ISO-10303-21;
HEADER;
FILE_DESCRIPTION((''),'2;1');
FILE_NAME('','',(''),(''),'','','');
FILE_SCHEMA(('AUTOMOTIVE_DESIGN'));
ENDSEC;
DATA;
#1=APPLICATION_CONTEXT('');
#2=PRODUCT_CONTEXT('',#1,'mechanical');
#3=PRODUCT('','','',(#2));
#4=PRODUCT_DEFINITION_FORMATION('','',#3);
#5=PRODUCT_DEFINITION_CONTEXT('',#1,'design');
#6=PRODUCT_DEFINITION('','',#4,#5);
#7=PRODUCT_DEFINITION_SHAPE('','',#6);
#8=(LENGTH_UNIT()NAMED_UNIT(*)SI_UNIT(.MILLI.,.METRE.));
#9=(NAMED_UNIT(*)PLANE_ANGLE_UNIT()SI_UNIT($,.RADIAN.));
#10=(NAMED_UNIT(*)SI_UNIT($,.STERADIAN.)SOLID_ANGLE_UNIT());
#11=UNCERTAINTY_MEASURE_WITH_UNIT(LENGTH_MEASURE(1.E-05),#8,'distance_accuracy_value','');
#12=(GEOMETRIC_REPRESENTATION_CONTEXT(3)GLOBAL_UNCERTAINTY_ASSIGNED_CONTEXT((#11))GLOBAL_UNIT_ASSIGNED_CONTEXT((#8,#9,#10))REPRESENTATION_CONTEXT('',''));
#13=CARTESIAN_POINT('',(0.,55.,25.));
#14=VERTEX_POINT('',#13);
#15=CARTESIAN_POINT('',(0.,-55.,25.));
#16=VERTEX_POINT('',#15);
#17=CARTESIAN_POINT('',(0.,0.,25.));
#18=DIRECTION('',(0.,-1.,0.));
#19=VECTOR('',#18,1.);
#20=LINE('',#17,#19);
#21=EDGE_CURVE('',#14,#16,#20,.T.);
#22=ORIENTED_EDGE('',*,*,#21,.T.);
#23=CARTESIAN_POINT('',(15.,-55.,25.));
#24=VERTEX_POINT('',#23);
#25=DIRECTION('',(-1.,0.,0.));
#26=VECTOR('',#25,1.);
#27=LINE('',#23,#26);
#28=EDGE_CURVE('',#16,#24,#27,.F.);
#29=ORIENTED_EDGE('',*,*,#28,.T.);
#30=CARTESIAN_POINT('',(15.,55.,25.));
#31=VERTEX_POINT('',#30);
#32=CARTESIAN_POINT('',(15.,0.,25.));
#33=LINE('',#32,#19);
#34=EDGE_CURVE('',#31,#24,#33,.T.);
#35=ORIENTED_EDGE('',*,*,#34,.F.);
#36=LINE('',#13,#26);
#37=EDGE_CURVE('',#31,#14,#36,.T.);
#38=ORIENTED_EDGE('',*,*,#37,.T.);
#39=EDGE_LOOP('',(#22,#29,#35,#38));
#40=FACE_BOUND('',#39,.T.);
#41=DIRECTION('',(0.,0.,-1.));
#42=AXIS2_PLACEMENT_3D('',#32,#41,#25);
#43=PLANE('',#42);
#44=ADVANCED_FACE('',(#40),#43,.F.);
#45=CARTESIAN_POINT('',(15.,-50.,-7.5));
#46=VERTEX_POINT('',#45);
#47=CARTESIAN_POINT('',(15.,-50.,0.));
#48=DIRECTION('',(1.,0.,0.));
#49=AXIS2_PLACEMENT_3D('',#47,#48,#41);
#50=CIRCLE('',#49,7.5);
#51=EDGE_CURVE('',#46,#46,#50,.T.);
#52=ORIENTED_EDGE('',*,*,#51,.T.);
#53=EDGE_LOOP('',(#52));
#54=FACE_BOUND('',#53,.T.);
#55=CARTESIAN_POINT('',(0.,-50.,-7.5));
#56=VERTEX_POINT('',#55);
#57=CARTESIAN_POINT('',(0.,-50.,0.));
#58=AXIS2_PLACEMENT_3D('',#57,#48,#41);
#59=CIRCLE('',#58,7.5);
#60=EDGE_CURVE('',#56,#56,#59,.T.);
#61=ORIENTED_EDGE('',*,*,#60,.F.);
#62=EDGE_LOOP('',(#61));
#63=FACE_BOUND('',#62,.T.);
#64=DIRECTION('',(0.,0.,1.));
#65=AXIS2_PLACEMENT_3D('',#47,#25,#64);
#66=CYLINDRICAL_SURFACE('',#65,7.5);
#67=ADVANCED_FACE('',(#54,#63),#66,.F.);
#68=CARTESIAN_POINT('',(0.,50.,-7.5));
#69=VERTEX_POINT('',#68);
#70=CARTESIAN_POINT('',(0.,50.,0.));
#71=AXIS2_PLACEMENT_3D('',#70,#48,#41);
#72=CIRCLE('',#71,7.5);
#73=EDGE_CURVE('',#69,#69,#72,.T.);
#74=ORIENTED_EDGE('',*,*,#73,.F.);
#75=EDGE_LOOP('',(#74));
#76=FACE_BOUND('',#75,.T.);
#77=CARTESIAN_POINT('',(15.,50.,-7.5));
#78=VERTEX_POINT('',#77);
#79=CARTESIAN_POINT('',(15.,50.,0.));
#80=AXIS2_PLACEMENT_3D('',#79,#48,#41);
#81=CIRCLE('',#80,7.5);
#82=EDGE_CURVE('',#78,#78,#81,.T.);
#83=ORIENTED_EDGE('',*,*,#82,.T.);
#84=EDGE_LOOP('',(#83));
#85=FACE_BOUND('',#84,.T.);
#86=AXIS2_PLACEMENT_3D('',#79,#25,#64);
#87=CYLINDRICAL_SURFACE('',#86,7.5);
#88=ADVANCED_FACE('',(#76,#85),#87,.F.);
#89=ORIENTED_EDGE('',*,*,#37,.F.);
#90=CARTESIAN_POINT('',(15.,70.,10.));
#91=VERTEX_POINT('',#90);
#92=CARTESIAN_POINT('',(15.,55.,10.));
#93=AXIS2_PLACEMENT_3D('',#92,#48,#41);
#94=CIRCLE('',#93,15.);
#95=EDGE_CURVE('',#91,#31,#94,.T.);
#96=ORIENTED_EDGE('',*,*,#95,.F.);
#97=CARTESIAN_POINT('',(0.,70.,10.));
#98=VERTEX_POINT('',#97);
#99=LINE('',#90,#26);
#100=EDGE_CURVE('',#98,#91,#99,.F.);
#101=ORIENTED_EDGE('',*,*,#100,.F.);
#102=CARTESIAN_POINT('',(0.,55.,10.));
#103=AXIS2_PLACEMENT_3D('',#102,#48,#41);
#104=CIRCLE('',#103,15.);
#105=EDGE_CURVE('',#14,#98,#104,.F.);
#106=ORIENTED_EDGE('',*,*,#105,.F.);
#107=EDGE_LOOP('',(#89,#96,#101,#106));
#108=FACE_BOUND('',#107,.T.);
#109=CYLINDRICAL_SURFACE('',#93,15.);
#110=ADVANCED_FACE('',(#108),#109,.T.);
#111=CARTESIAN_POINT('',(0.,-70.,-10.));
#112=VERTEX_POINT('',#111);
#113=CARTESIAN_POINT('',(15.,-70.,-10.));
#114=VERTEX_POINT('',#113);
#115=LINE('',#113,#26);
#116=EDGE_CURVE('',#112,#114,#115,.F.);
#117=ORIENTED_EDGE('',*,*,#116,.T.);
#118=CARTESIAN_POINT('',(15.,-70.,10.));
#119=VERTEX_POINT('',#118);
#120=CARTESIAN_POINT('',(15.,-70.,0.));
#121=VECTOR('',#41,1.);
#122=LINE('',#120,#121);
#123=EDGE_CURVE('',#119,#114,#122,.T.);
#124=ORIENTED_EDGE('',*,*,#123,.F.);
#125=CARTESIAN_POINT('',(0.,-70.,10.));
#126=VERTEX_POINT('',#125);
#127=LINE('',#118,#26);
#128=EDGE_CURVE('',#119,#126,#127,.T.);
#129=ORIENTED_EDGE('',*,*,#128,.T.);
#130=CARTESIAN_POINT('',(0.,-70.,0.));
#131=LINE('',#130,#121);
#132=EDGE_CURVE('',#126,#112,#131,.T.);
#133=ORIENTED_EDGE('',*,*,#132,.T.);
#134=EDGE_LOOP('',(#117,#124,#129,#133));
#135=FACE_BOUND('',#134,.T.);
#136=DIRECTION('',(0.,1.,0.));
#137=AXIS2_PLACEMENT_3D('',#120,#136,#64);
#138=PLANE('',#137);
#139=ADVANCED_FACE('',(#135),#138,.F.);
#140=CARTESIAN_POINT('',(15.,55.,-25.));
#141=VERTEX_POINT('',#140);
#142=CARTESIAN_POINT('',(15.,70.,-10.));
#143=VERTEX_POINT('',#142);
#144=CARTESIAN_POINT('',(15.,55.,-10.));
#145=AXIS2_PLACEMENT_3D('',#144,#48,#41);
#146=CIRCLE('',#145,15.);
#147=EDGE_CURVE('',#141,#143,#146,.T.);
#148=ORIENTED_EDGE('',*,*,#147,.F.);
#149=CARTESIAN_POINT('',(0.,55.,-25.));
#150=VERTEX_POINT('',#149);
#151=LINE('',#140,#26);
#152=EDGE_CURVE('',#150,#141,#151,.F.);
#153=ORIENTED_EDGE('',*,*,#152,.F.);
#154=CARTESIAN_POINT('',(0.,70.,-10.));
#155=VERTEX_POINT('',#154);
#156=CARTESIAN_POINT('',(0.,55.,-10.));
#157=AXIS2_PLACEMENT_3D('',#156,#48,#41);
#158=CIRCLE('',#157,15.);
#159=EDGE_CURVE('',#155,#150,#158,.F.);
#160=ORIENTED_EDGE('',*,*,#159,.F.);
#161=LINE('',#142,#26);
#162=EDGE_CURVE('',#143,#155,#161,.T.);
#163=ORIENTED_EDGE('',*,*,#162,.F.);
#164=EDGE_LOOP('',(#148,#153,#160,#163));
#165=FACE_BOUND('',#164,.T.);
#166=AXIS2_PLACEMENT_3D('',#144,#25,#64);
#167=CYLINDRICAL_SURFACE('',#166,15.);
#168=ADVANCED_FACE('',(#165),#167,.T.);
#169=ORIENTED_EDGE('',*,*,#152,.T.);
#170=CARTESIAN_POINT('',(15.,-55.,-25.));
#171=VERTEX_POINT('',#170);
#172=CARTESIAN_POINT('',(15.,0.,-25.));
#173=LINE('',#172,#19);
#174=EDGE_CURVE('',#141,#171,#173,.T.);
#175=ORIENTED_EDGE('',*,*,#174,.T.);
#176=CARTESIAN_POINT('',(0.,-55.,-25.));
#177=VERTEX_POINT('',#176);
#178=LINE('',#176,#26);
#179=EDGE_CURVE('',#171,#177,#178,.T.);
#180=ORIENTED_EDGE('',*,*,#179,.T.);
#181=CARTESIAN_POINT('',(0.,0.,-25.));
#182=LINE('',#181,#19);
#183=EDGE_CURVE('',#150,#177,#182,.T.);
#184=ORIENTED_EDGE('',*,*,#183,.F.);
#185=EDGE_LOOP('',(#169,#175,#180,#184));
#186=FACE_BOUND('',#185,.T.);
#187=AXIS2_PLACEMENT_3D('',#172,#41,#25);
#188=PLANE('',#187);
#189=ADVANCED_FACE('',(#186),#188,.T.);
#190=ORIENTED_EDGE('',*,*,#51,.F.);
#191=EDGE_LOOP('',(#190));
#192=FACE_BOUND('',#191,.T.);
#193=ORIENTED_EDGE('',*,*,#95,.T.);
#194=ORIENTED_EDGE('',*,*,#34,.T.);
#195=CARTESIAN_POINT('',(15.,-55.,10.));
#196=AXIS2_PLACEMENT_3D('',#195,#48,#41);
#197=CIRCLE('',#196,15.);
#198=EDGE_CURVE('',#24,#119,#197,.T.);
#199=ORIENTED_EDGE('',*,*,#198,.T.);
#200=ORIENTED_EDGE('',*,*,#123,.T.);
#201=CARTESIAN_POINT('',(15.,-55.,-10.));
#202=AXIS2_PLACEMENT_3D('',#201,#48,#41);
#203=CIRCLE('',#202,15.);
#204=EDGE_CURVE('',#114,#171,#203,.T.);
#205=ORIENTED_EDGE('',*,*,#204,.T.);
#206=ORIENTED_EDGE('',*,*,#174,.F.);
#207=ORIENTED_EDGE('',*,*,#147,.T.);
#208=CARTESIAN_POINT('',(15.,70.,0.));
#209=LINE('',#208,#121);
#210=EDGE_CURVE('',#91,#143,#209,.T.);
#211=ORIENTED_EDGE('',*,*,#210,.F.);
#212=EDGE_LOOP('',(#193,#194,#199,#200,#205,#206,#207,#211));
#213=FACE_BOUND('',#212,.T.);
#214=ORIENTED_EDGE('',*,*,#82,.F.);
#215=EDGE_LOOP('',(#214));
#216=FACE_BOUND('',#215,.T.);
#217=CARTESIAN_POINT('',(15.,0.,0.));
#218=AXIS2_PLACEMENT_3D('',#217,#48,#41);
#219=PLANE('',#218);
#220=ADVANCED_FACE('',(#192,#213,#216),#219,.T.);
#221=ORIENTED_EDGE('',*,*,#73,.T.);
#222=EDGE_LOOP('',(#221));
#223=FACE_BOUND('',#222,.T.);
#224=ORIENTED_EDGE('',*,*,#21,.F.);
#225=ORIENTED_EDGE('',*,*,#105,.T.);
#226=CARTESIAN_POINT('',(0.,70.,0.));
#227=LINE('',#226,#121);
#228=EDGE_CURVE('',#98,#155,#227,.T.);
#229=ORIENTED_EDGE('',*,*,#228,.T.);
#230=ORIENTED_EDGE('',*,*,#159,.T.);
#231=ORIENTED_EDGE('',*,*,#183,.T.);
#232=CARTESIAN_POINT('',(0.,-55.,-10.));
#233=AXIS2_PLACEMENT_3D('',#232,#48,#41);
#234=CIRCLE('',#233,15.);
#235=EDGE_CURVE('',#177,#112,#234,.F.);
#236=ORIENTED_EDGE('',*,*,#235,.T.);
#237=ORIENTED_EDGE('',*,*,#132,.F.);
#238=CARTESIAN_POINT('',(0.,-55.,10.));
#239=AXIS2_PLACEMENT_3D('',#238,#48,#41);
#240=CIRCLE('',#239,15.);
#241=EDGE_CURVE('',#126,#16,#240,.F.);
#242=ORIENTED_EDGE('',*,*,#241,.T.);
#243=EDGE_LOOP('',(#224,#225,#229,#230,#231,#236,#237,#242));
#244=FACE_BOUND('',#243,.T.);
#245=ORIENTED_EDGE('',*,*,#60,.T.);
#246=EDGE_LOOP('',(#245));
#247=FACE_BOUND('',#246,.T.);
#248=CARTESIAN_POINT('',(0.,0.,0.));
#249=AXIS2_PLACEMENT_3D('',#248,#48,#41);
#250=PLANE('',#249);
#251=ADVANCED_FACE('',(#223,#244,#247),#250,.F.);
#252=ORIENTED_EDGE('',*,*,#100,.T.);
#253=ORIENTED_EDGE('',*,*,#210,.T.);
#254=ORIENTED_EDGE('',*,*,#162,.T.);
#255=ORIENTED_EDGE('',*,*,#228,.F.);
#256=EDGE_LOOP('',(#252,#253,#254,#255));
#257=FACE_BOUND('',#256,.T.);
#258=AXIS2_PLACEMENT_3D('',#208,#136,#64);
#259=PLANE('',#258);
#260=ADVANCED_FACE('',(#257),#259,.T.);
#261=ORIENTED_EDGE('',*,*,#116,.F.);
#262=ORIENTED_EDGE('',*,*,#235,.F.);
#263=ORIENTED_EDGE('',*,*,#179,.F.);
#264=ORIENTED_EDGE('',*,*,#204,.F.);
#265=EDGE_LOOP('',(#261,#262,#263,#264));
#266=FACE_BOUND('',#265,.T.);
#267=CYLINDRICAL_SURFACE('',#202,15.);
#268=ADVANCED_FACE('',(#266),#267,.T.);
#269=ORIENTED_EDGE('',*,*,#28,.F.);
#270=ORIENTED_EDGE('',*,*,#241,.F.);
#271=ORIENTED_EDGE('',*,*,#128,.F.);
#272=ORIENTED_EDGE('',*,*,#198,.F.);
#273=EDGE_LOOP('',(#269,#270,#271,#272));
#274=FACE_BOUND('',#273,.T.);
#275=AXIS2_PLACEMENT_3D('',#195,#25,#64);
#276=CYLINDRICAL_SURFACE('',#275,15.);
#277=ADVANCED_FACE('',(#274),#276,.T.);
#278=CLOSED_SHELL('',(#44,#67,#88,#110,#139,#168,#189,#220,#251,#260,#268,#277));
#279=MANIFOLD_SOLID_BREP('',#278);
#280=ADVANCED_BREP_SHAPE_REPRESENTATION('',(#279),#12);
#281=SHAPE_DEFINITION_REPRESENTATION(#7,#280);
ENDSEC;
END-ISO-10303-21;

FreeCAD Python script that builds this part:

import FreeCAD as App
import Part
import Sketcher
from FreeCAD import Vector


def edges_at(feature, points):
    """Names of the edges that pass closest to the given points."""
    edges = feature.Shape.Edges
    near = lambda p: min(range(len(edges)), key=lambda i: edges[i].distToShape(Part.Vertex(*p))[0])
    return sorted({f"Edge{near(p) + 1}" for p in points})


def add_polygon(sketch, points):
    """Adds a closed chain of lines whose ends are joined by coincident constraints."""
    first, n = sketch.GeometryCount, len(points)
    for a, b in zip(points, points[1:] + points[:1]):
        sketch.addGeometry(Part.LineSegment(App.Vector(*a, 0), App.Vector(*b, 0)), False)
    for i in range(n):
        sketch.addConstraint(Sketcher.Constraint("Coincident", first + i, 2, first + (i + 1) % n, 1))

doc = App.newDocument("Part")
body = doc.addObject("PartDesign::Body", "Body")

# Sketch on YZ plane
sketch1 = body.newObject("Sketcher::SketchObject", "Sketch")
sketch1.AttachmentSupport = (doc.getObject("YZ_Plane"), [""])
sketch1.MapMode = "FlatFace"
add_polygon(sketch1, [(70, 25), (-70, 25), (-70, -25), (70, -25)])  # lines 0-3
sketch1.addConstraint(Sketcher.Constraint("Horizontal", 0))
sketch1.addConstraint(Sketcher.Constraint("Vertical", 1))
sketch1.addConstraint(Sketcher.Constraint("Horizontal", 2))
sketch1.addConstraint(Sketcher.Constraint("Vertical", 3))
sketch1.addConstraint(Sketcher.Constraint("Symmetric", 0, 2, 2, 2, -1, 1))
sketch1.addConstraint(Sketcher.Constraint("DistanceX", 0, 2, 0, 1, 140.0))
sketch1.addConstraint(Sketcher.Constraint("DistanceY", 1, 2, 1, 1, 50.0))
pad1 = body.newObject("PartDesign::Pad", "Pad")
pad1.Profile = sketch1
pad1.Length = 15

# Sketch on YZ plane
sketch2 = body.newObject("Sketcher::SketchObject", "Sketch001")
sketch2.AttachmentSupport = (doc.getObject("YZ_Plane"), [""])
sketch2.MapMode = "FlatFace"
sketch2.addGeometry(Part.Circle(Vector(50, 0, 0), Vector(0, 0, 1), 8), False)
sketch2.addGeometry(Part.Circle(Vector(-50, 0, 0), Vector(0, 0, 1), 8), False)
sketch2.addConstraint(Sketcher.Constraint("Equal", 0, 1))
sketch2.addConstraint(Sketcher.Constraint("Symmetric", 0, 3, 1, 3, -1, 1))
sketch2.addConstraint(Sketcher.Constraint("PointOnObject", 0, 3, -1))
sketch2.addConstraint(Sketcher.Constraint("Diameter", 0, 15.0))
sketch2.addConstraint(Sketcher.Constraint("DistanceX", -1, 1, 0, 3, 50.0))
pocket1 = body.newObject("PartDesign::Pocket", "Pocket")
pocket1.Profile = sketch2
pocket1.Type = "ThroughAll"
pocket1.Reversed = True
doc.recompute()

fillet = body.newObject("PartDesign::Fillet", "Fillet")
fillet.Base = (pocket1, edges_at(pocket1, [
    (7.5, -70, -25),
    (7.5, -70, 25),
    (7.5, 70, 25),
    (7.5, 70, -25),
]))
fillet.Radius = 15

doc.recompute()
